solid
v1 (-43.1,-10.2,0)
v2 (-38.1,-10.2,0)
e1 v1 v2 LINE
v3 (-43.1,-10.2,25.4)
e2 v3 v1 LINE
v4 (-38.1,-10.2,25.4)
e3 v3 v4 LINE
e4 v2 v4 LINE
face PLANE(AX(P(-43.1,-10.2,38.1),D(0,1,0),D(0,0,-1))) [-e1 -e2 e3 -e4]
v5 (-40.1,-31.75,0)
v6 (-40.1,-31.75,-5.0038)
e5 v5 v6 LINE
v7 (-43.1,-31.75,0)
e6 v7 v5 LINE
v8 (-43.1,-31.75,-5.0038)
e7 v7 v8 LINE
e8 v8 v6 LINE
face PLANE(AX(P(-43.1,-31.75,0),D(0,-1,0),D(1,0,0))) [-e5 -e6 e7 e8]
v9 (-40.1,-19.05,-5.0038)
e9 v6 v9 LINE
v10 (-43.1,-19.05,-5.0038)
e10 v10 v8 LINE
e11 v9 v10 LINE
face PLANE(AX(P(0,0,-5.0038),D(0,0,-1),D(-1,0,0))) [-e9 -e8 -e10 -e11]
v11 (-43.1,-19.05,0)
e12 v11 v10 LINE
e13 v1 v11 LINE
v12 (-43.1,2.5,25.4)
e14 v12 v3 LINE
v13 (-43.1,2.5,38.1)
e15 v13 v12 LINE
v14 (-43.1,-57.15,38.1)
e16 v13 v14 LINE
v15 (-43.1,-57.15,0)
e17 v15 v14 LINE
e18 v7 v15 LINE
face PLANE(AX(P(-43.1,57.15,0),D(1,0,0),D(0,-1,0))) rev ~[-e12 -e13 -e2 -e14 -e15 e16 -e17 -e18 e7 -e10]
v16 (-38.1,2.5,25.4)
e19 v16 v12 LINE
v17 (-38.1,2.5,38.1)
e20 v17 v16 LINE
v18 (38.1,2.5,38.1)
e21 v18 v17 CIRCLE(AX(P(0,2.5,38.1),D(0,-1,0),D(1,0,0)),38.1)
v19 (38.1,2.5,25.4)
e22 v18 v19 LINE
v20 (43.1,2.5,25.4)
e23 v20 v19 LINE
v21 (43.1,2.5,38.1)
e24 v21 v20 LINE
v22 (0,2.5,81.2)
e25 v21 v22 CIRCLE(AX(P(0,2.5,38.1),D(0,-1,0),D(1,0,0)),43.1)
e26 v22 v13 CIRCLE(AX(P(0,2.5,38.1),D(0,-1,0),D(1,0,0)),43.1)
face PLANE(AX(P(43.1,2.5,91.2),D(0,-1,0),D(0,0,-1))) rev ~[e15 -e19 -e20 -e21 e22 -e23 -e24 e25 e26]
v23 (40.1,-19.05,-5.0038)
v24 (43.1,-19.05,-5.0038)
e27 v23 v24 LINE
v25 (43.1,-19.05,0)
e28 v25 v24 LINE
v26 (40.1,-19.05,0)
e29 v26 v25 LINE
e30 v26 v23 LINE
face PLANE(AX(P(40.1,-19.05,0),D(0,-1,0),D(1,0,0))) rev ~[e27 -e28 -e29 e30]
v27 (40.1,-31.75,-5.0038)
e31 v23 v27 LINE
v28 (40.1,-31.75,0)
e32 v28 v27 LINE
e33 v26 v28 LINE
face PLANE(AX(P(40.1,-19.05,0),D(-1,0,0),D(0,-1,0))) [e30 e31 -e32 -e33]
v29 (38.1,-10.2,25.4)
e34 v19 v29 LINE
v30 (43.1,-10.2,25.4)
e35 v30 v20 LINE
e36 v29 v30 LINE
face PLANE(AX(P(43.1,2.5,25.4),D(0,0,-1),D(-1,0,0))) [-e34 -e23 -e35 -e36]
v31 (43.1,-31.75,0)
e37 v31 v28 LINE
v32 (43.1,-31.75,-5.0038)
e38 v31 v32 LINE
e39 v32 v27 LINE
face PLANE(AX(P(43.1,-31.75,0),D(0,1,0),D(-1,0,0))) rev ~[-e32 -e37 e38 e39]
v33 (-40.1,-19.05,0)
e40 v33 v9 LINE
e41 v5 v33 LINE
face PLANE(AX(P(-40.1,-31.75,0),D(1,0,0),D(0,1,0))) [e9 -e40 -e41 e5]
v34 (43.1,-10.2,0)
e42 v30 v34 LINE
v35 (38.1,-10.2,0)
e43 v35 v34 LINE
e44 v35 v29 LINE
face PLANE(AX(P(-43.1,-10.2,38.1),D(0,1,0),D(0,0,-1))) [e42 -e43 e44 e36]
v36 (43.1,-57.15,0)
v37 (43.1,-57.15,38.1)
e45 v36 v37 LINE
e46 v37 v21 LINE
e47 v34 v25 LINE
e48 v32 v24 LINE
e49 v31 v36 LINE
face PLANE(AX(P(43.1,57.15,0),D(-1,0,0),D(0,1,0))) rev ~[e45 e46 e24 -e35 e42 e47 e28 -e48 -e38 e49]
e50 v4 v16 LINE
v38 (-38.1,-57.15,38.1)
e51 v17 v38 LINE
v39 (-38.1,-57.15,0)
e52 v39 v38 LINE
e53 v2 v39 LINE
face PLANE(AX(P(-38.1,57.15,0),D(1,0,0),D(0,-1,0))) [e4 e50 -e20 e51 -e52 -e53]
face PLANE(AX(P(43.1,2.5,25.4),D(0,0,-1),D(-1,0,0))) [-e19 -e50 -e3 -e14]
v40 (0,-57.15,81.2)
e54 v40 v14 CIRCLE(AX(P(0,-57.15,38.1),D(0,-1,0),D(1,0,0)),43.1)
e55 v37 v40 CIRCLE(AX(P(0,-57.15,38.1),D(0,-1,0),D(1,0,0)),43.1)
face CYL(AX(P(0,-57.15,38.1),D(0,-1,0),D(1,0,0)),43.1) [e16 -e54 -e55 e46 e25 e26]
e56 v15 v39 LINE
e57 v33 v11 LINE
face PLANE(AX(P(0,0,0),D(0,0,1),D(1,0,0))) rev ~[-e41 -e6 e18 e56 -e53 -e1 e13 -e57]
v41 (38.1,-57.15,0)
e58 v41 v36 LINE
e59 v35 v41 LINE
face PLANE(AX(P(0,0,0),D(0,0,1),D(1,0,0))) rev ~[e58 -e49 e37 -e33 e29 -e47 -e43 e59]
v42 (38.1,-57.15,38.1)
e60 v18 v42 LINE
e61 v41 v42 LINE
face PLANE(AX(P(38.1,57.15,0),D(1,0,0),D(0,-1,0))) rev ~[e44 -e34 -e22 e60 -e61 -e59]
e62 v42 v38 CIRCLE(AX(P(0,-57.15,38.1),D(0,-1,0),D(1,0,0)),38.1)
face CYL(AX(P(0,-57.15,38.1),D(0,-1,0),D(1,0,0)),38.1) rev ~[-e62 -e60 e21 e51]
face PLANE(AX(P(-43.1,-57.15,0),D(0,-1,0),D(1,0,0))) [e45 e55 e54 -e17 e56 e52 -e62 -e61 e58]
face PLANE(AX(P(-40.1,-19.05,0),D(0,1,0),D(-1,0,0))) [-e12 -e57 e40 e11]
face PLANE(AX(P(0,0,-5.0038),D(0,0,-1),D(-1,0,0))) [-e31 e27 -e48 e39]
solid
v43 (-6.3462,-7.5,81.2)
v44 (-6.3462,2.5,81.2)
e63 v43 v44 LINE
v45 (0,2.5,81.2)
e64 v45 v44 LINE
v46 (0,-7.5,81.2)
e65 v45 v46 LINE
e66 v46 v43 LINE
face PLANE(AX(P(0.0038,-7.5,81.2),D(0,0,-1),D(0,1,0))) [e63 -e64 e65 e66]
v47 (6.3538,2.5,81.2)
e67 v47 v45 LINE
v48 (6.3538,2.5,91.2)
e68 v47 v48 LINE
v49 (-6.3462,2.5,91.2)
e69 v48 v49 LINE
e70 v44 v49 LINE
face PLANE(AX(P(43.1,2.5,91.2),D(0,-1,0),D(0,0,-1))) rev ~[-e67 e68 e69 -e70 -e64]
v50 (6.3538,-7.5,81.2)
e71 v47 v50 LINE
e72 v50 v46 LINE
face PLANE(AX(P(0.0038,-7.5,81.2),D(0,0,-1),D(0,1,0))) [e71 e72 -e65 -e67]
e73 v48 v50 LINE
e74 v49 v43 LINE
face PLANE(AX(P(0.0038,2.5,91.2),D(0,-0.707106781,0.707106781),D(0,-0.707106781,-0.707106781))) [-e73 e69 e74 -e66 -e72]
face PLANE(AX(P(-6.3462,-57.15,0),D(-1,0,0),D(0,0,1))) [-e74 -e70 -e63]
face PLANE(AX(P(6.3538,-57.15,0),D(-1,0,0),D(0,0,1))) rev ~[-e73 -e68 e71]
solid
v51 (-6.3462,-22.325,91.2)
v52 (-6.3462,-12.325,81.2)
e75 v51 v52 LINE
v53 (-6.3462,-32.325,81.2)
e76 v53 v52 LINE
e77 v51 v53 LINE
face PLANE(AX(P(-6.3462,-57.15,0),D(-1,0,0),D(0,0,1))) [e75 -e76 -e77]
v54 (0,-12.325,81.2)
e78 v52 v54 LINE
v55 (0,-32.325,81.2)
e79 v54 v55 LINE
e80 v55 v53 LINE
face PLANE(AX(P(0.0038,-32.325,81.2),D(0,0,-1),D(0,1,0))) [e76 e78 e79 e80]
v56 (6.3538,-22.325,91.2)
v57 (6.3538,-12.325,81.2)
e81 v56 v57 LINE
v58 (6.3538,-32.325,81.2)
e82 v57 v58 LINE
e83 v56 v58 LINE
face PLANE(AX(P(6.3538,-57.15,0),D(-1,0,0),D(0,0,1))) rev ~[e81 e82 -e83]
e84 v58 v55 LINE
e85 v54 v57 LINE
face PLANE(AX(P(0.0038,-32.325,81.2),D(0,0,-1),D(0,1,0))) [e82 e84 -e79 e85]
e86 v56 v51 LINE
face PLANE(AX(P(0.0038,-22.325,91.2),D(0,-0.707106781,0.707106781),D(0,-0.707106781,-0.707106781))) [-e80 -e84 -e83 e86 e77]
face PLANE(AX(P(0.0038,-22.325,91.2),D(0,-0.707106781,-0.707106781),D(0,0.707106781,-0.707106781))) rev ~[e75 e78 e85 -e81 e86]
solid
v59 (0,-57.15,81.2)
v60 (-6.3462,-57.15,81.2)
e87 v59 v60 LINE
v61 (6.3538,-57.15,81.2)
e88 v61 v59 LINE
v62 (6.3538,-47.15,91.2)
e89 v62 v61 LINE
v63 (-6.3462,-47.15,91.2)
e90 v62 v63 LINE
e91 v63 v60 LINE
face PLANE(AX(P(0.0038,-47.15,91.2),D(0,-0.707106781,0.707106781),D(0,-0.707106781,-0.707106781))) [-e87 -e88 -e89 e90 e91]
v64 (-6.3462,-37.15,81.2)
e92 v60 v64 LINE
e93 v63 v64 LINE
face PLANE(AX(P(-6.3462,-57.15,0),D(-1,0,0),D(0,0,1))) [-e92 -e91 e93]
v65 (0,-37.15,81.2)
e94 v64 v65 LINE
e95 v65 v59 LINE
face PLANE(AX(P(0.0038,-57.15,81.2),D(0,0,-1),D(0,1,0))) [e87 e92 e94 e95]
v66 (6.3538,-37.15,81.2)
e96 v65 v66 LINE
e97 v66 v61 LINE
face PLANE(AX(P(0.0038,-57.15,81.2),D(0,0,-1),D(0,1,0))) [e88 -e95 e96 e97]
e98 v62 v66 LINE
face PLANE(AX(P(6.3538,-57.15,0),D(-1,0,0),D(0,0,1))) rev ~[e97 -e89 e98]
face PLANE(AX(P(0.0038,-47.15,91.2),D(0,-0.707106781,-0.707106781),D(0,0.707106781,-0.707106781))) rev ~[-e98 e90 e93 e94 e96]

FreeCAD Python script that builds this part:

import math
import FreeCAD as App
import Part
import Sketcher

V = App.Vector
Q = App.Units.Quantity

doc = App.newDocument("Part")
body = doc.addObject("PartDesign::Body", "Body")
body.AllowCompound = True

sketch1 = body.newObject("Sketcher::SketchObject", "Sketch")
sketch1.AttachmentSupport = (doc.getObject("XY_Plane"), [""])
sketch1.MapMode = "FlatFace"
sketch1.addGeometry([
    Part.LineSegment(V(-43, -57, 0), V(-38, -57, 0)),
    Part.LineSegment(V(-38, -57, 0), V(-38, 57, 0)),
    Part.LineSegment(V(-38, 57, 0), V(38, 57, 0)),
    Part.LineSegment(V(38, 57, 0), V(38, -57, 0)),
    Part.LineSegment(V(38, -57, 0), V(43, -57, 0)),
    Part.LineSegment(V(43, -57, 0), V(43, 62, 0)),
    Part.LineSegment(V(43, 62, 0), V(-43, 62, 0)),
    Part.LineSegment(V(-43, 62, 0), V(-43, -57, 0)),
], False)
sketch1.addConstraint([
    Sketcher.Constraint("Coincident", 0, 2, 1, 1),
    Sketcher.Constraint("Coincident", 1, 2, 2, 1),
    Sketcher.Constraint("Coincident", 2, 2, 3, 1),
    Sketcher.Constraint("Coincident", 3, 2, 4, 1),
    Sketcher.Constraint("Coincident", 4, 2, 5, 1),
    Sketcher.Constraint("Coincident", 5, 2, 6, 1),
    Sketcher.Constraint("Coincident", 6, 2, 7, 1),
    Sketcher.Constraint("Coincident", 7, 2, 0, 1),
    Sketcher.Constraint("Horizontal", 0),
    Sketcher.Constraint("Vertical", 1),
    Sketcher.Constraint("Horizontal", 2),
    Sketcher.Constraint("Vertical", 3),
    Sketcher.Constraint("Horizontal", 4),
    Sketcher.Constraint("Vertical", 5),
    Sketcher.Constraint("Horizontal", 6),
    Sketcher.Constraint("Vertical", 7),
    Sketcher.Constraint("Symmetric", 0, 2, 2, 2, -1, 1),
    Sketcher.Constraint("Symmetric", 4, 2, 7, 2, -2),
    Sketcher.Constraint("DistanceX", 2, 1, 2, 2, Q("3 in")),
    Sketcher.Constraint("DistanceY", 1, 1, 1, 2, Q("4.5 in")),
    Sketcher.Constraint("DistanceX", 0, 1, 0, 2, Q("5 mm")),
    Sketcher.Constraint("DistanceY", 2, 2, 5, 2, Q("5 mm")),
])
pad1 = body.newObject("PartDesign::Pad", "Pad")
pad1.Profile = sketch1
pad1.Length = Q("1.5 in")

sketch2 = body.newObject("Sketcher::SketchObject", "Sketch001")
sketch2.AttachmentSupport = (doc.getObject("XZ_Plane"), [""])
sketch2.MapMode = "FlatFace"
sketch2.AttachmentOffset = App.Placement(V(0, 0, 2.25 * 25.4), App.Rotation())
sketch2.addGeometry([
    Part.LineSegment(V(-43, 38, 0), V(-38, 38, 0)),
    Part.ArcOfCircle(Part.Circle(V(0, 38, 0), V(0, 0, 1), 38), math.radians(0), math.radians(180)),
    Part.LineSegment(V(38, 38, 0), V(43, 38, 0)),
    Part.ArcOfCircle(Part.Circle(V(0, 38, 0), V(0, 0, 1), 43), math.radians(0), math.radians(180)),
], False)
sketch2.addConstraint([
    Sketcher.Constraint("Coincident", 0, 2, 1, 2),
    Sketcher.Constraint("Coincident", 1, 1, 2, 1),
    Sketcher.Constraint("Coincident", 2, 2, 3, 1),
    Sketcher.Constraint("Coincident", 3, 2, 0, 1),
    Sketcher.Constraint("Horizontal", 0),
    Sketcher.Constraint("Horizontal", 2),
    Sketcher.Constraint("Coincident", 3, 3, 1, 3),
    Sketcher.Constraint("Symmetric", 0, 2, 1, 1, -2),
    Sketcher.Constraint("Horizontal", 3, 3, 0, 2),
    Sketcher.Constraint("Radius", 1, Q("1.5 in")),
    Sketcher.Constraint("DistanceY", -1, 1, 1, 3, Q("1.5 in")),
    Sketcher.Constraint("Radius", 3, Q("43.1 mm")),
])
pad2 = body.newObject("PartDesign::Pad", "Pad001")
pad2.Profile = sketch2
pad2.Length = 119.3
pad2.Reversed = True

sketch3 = body.newObject("Sketcher::SketchObject", "Sketch002")
sketch3.AttachmentSupport = (doc.getObject("XZ_Plane"), [""])
sketch3.MapMode = "FlatFace"
sketch3.AttachmentOffset = App.Placement(V(0, 0, -62.15), App.Rotation())
sketch3.addGeometry([
    Part.LineSegment(V(38, 38, 0), V(-38, 38, 0)),
    Part.ArcOfCircle(Part.Circle(V(0, 38, 0), V(0, 0, 1), 38), math.radians(0), math.radians(180)),
], False)
sketch3.addConstraint([
    Sketcher.Constraint("Coincident", 0, 1, 1, 1),
    Sketcher.Constraint("Coincident", 1, 2, 0, 2),
    Sketcher.Constraint("Horizontal", 0),
    Sketcher.Constraint("PointOnObject", 1, 3, -2),
    Sketcher.Constraint("Horizontal", 1, 3, 0, 1),
    Sketcher.Constraint("Radius", 1, Q("1.5 in")),
    Sketcher.Constraint("DistanceY", -1, 1, 1, 3, Q("1.5 in")),
])
pad3 = body.newObject("PartDesign::Pad", "Pad002")
pad3.Profile = sketch3
pad3.Length = 5

sketch4 = body.newObject("Sketcher::SketchObject", "Sketch003")
sketch4.AttachmentSupport = (doc.getObject("XZ_Plane"), [""])
sketch4.MapMode = "FlatFace"
sketch4.AttachmentOffset = App.Placement(V(0, 0, -62.15), App.Rotation())
sketch4.addGeometry(Part.Circle(V(0, 23.4, 0), V(0, 0, 1), 3.3), False)
sketch4.addConstraint([
    Sketcher.Constraint("PointOnObject", 0, 3, -2),
    Sketcher.Constraint("Diameter", 0, Q("6.55 mm")),
    Sketcher.Constraint("DistanceY", -1, 1, 0, 3, Q("23.375 mm")),
])
pocket1 = body.newObject("PartDesign::Pocket", "Pocket")
pocket1.Profile = sketch4
pocket1.Length = 5
pocket1.Reversed = True

sketch5 = body.newObject("Sketcher::SketchObject", "Sketch004")
sketch5.AttachmentSupport = (doc.getObject("YZ_Plane"), [""])
sketch5.MapMode = "FlatFace"
sketch5.AttachmentOffset = App.Placement(V(0, 0, 0.0038), App.Rotation())
sketch5.addGeometry([
    Part.LineSegment(V(42, 81, 0), V(52, 91, 0)),
    Part.LineSegment(V(52, 91, 0), V(62, 81, 0)),
    Part.LineSegment(V(62, 81, 0), V(42, 81, 0)),
    Part.LineSegment(V(17, 81, 0), V(27, 91, 0)),
    Part.LineSegment(V(27, 91, 0), V(37, 81, 0)),
    Part.LineSegment(V(37, 81, 0), V(17, 81, 0)),
    Part.LineSegment(V(-8, 81, 0), V(2, 91, 0)),
    Part.LineSegment(V(2, 91, 0), V(12, 81, 0)),
    Part.LineSegment(V(12, 81, 0), V(-8, 81, 0)),
    Part.LineSegment(V(-32, 81, 0), V(-22, 91, 0)),
    Part.LineSegment(V(-22, 91, 0), V(-12, 81, 0)),
    Part.LineSegment(V(-12, 81, 0), V(-32, 81, 0)),
    Part.LineSegment(V(-57, 81, 0), V(-47, 91, 0)),
    Part.LineSegment(V(-47, 91, 0), V(-37, 81, 0)),
    Part.LineSegment(V(-37, 81, 0), V(-57, 81, 0)),
], False)
sketch5.addConstraint([
    Sketcher.Constraint("Coincident", 0, 2, 1, 1),
    Sketcher.Constraint("Coincident", 1, 2, 2, 1),
    Sketcher.Constraint("Coincident", 2, 2, 0, 1),
    Sketcher.Constraint("Coincident", 3, 2, 4, 1),
    Sketcher.Constraint("Coincident", 4, 2, 5, 1),
    Sketcher.Constraint("Coincident", 5, 2, 3, 1),
    Sketcher.Constraint("Coincident", 6, 2, 7, 1),
    Sketcher.Constraint("Coincident", 7, 2, 8, 1),
    Sketcher.Constraint("Coincident", 8, 2, 6, 1),
    Sketcher.Constraint("Coincident", 9, 2, 10, 1),
    Sketcher.Constraint("Coincident", 10, 2, 11, 1),
    Sketcher.Constraint("Coincident", 11, 2, 9, 1),
    Sketcher.Constraint("Coincident", 12, 2, 13, 1),
    Sketcher.Constraint("Coincident", 13, 2, 14, 1),
    Sketcher.Constraint("Coincident", 14, 2, 12, 1),
    Sketcher.Constraint("Horizontal", 2),
    Sketcher.Constraint("Horizontal", 5),
    Sketcher.Constraint("Horizontal", 8),
    Sketcher.Constraint("Horizontal", 11),
    Sketcher.Constraint("Horizontal", 14),
    Sketcher.Constraint("Perpendicular", 0, 1),
    Sketcher.Constraint("Perpendicular", 1, 3),
    Sketcher.Constraint("Perpendicular", 3, 4),
    Sketcher.Constraint("Perpendicular", 4, 6),
    Sketcher.Constraint("Perpendicular", 6, 7),
    Sketcher.Constraint("Perpendicular", 7, 9),
    Sketcher.Constraint("Perpendicular", 9, 10),
    Sketcher.Constraint("Perpendicular", 10, 12),
    Sketcher.Constraint("Perpendicular", 12, 13),
    Sketcher.Constraint("Horizontal", 0, 2, 3, 2),
    Sketcher.Constraint("Horizontal", 2, 2, 4, 2),
    Sketcher.Constraint("Horizontal", 3, 2, 6, 2),
    Sketcher.Constraint("Horizontal", 5, 2, 7, 2),
    Sketcher.Constraint("Horizontal", 6, 2, 9, 2),
    Sketcher.Constraint("Horizontal", 8, 2, 10, 2),
    Sketcher.Constraint("Horizontal", 9, 2, 12, 2),
    Sketcher.Constraint("Horizontal", 11, 2, 13, 2),
    Sketcher.Constraint("Equal", 0, 1),
    Sketcher.Constraint("DistanceX", 2, 2, 2, 1, Q("0.7874 in")),
    Sketcher.Constraint("DistanceX", 14, 2, -1, 1, Q("2.25 in")),
    Sketcher.Constraint("DistanceX", 3, 2, 0, 2, Q("24.825 mm")),
    Sketcher.Constraint("DistanceX", 6, 2, 3, 2, Q("24.825 mm")),
    Sketcher.Constraint("DistanceX", 9, 2, 6, 2, Q("24.825 mm")),
    Sketcher.Constraint("DistanceX", 12, 2, 9, 2, Q("24.825 mm")),
    Sketcher.Constraint("DistanceY", -1, 1, 0, 2, Q("91.2 mm")),
])
pad4 = body.newObject("PartDesign::Pad", "Pad003")
pad4.Profile = sketch5
pad4.Length = Q("0.5 in")
pad4.Midplane = True

sketch6 = body.newObject("Sketcher::SketchObject", "Sketch005")
sketch6.AttachmentSupport = (doc.getObject("XY_Plane"), [""])
sketch6.MapMode = "FlatFace"
sketch6.addGeometry([
    Part.LineSegment(V(-43.1, -31.8, 0), V(-43.1, -19.1, 0)),
    Part.LineSegment(V(-43.1, -19.1, 0), V(-40.1, -19.1, 0)),
    Part.LineSegment(V(-40.1, -19.1, 0), V(-40.1, -31.8, 0)),
    Part.LineSegment(V(-40.1, -31.8, 0), V(-43.1, -31.8, 0)),
    Part.LineSegment(V(-40.1, 36.8, 0), V(-40.1, 24.1, 0)),
    Part.LineSegment(V(-40.1, 24.1, 0), V(-43.1, 24.1, 0)),
    Part.LineSegment(V(-43.1, 24.1, 0), V(-43.1, 36.8, 0)),
    Part.LineSegment(V(-43.1, 36.8, 0), V(-40.1, 36.8, 0)),
    Part.LineSegment(V(40.1, -19.1, 0), V(43.1, -19.1, 0)),
    Part.LineSegment(V(43.1, -19.1, 0), V(43.1, -31.8, 0)),
    Part.LineSegment(V(43.1, -31.8, 0), V(40.1, -31.8, 0)),
    Part.LineSegment(V(40.1, -31.8, 0), V(40.1, -19.1, 0)),
    Part.LineSegment(V(40.1, 24.1, 0), V(40.1, 36.8, 0)),
    Part.LineSegment(V(40.1, 36.8, 0), V(43.1, 36.8, 0)),
    Part.LineSegment(V(43.1, 36.8, 0), V(43.1, 24.1, 0)),
    Part.LineSegment(V(43.1, 24.1, 0), V(40.1, 24.1, 0)),
], False)
sketch6.addConstraint([
    Sketcher.Constraint("Coincident", 0, 2, 1, 1),
    Sketcher.Constraint("Coincident", 1, 2, 2, 1),
    Sketcher.Constraint("Coincident", 2, 2, 3, 1),
    Sketcher.Constraint("Coincident", 3, 2, 0, 1),
    Sketcher.Constraint("Coincident", 4, 2, 5, 1),
    Sketcher.Constraint("Coincident", 5, 2, 6, 1),
    Sketcher.Constraint("Coincident", 6, 2, 7, 1),
    Sketcher.Constraint("Coincident", 7, 2, 4, 1),
    Sketcher.Constraint("Coincident", 8, 2, 9, 1),
    Sketcher.Constraint("Coincident", 9, 2, 10, 1),
    Sketcher.Constraint("Coincident", 10, 2, 11, 1),
    Sketcher.Constraint("Coincident", 11, 2, 8, 1),
    Sketcher.Constraint("Coincident", 12, 2, 13, 1),
    Sketcher.Constraint("Coincident", 13, 2, 14, 1),
    Sketcher.Constraint("Coincident", 14, 2, 15, 1),
    Sketcher.Constraint("Coincident", 15, 2, 12, 1),
    Sketcher.Constraint("Vertical", 0),
    Sketcher.Constraint("Horizontal", 1),
    Sketcher.Constraint("Vertical", 2),
    Sketcher.Constraint("Horizontal", 3),
    Sketcher.Constraint("Vertical", 4),
    Sketcher.Constraint("Horizontal", 5),
    Sketcher.Constraint("Vertical", 6),
    Sketcher.Constraint("Horizontal", 7),
    Sketcher.Constraint("Horizontal", 8),
    Sketcher.Constraint("Vertical", 9),
    Sketcher.Constraint("Horizontal", 10),
    Sketcher.Constraint("Vertical", 11),
    Sketcher.Constraint("Vertical", 12),
    Sketcher.Constraint("Horizontal", 13),
    Sketcher.Constraint("Vertical", 14),
    Sketcher.Constraint("Horizontal", 15),
    Sketcher.Constraint("Symmetric", 0, 2, 8, 2, -2),
    Sketcher.Constraint("Symmetric", 2, 2, 10, 2, -2),
    Sketcher.Constraint("Symmetric", 7, 2, 12, 2, -2),
    Sketcher.Constraint("Symmetric", 5, 2, 14, 2, -2),
    Sketcher.Constraint("Vertical", 2, 2, 4, 2),
    Sketcher.Constraint("Vertical", 3, 2, 5, 2),
    Sketcher.Constraint("Equal", 2, 4),
    Sketcher.Constraint("DistanceY", 0, 1, 0, 2, Q("0.5 in")),
    Sketcher.Constraint("DistanceY", 0, 2, -1, 1, Q("0.75 in")),
    Sketcher.Constraint("DistanceX", 1, 1, 1, 2, Q("0.1181 in")),
    Sketcher.Constraint("DistanceX", 1, 2, 8, 2, Q("3.2756 in")),
    Sketcher.Constraint("DistanceY", -1, 1, 4, 2, Q("24.05 mm")),
])
pad5 = body.newObject("PartDesign::Pad", "Pad004")
pad5.Profile = sketch6
pad5.Length = Q("0.197 in")
pad5.Reversed = True

sketch7 = body.newObject("Sketcher::SketchObject", "Sketch006")
sketch7.AttachmentSupport = (doc.getObject("YZ_Plane"), [""])
sketch7.MapMode = "FlatFace"
sketch7.AttachmentOffset = App.Placement(V(0, 0, 43.1), App.Rotation())
sketch7.addGeometry([
    Part.LineSegment(V(70, 149, 0), V(2, 91, 0)),
    Part.LineSegment(V(2, 91, 0), V(2, -41, 0)),
    Part.LineSegment(V(2, -41, 0), V(166, 0, 0)),
    Part.LineSegment(V(166, 0, 0), V(70, 149, 0)),
], False)
sketch7.addConstraint([
    Sketcher.Constraint("Coincident", 0, 2, 1, 1),
    Sketcher.Constraint("Coincident", 1, 2, 2, 1),
    Sketcher.Constraint("Coincident", 2, 2, 3, 1),
    Sketcher.Constraint("Coincident", 3, 2, 0, 1),
    Sketcher.Constraint("Vertical", 1),
    Sketcher.Constraint("PointOnObject", 2, 2, -1),
    Sketcher.Constraint("Angle", 2, Q("14.0096 deg")),
    Sketcher.Constraint("Angle", 3, Q("122.789 deg")),
    Sketcher.Constraint("DistanceY", -1, 1, 3, 2, Q("5.855 in")),
    Sketcher.Constraint("DistanceY", 1, 2, 1, 1, Q("131.949 mm")),
    Sketcher.Constraint("DistanceY", 1, 2, -1, 1, Q("1.6043 in")),
    Sketcher.Constraint("DistanceX", -1, 1, 0, 2, Q("2.5 mm")),
])
pocket2 = body.newObject("PartDesign::Pocket", "Pocket001")
pocket2.Profile = sketch7
pocket2.Length = Q("100 in")

sketch8 = body.newObject("Sketcher::SketchObject", "Sketch007")
sketch8.AttachmentSupport = (doc.getObject("YZ_Plane"), [""])
sketch8.MapMode = "FlatFace"
sketch8.AttachmentOffset = App.Placement(V(0, 0, -43.1), App.Rotation())
sketch8.addGeometry([
    Part.LineSegment(V(-10, 38, 0), V(2, 38, 0)),
    Part.LineSegment(V(2, 38, 0), V(2, 0, 0)),
    Part.LineSegment(V(2, 0, 0), V(-10, 0, 0)),
    Part.LineSegment(V(-10, 0, 0), V(-10, 38, 0)),
], False)
sketch8.addConstraint([
    Sketcher.Constraint("Coincident", 0, 2, 1, 1),
    Sketcher.Constraint("Coincident", 1, 2, 2, 1),
    Sketcher.Constraint("Coincident", 2, 2, 3, 1),
    Sketcher.Constraint("Coincident", 3, 2, 0, 1),
    Sketcher.Constraint("Horizontal", 0),
    Sketcher.Constraint("Vertical", 1),
    Sketcher.Constraint("Horizontal", 2),
    Sketcher.Constraint("Vertical", 3),
    Sketcher.Constraint("PointOnObject", 1, 2, -1),
    Sketcher.Constraint("DistanceX", 0, 1, 0, 2, Q("0.5 in")),
    Sketcher.Constraint("DistanceY", 1, 2, 1, 1, Q("1.5 in")),
    Sketcher.Constraint("DistanceX", -1, 1, 0, 2, Q("2.5 mm")),
])
pocket3 = body.newObject("PartDesign::Pocket", "Pocket002")
pocket3.Profile = sketch8
pocket3.Length = Q("77 in")
pocket3.Reversed = True

sketch9 = body.newObject("Sketcher::SketchObject", "Sketch008")
sketch9.AttachmentSupport = (doc.getObject("XY_Plane"), [""])
sketch9.MapMode = "FlatFace"
sketch9.AttachmentOffset = App.Placement(V(0, 0, 1.5 * 25.4), App.Rotation())
sketch9.addGeometry([
    Part.LineSegment(V(-38, 2, 0), V(-38, -10, 0)),
    Part.LineSegment(V(-38, -10, 0), V(-43, -10, 0)),
    Part.LineSegment(V(-43, -10, 0), V(-43, 2, 0)),
    Part.LineSegment(V(-43, 2, 0), V(-38, 2, 0)),
    Part.LineSegment(V(38, -10, 0), V(38, 2, 0)),
    Part.LineSegment(V(38, 2, 0), V(43, 2, 0)),
    Part.LineSegment(V(43, 2, 0), V(43, -10, 0)),
    Part.LineSegment(V(43, -10, 0), V(38, -10, 0)),
], False)
sketch9.addConstraint([
    Sketcher.Constraint("Coincident", 0, 2, 1, 1),
    Sketcher.Constraint("Coincident", 1, 2, 2, 1),
    Sketcher.Constraint("Coincident", 2, 2, 3, 1),
    Sketcher.Constraint("Coincident", 3, 2, 0, 1),
    Sketcher.Constraint("Coincident", 4, 2, 5, 1),
    Sketcher.Constraint("Coincident", 5, 2, 6, 1),
    Sketcher.Constraint("Coincident", 6, 2, 7, 1),
    Sketcher.Constraint("Coincident", 7, 2, 4, 1),
    Sketcher.Constraint("Vertical", 0),
    Sketcher.Constraint("Horizontal", 1),
    Sketcher.Constraint("Vertical", 2),
    Sketcher.Constraint("Horizontal", 3),
    Sketcher.Constraint("Vertical", 4),
    Sketcher.Constraint("Horizontal", 5),
    Sketcher.Constraint("Vertical", 6),
    Sketcher.Constraint("Horizontal", 7),
    Sketcher.Constraint("Symmetric", 3, 2, 4, 2, -2),
    Sketcher.Constraint("Symmetric", 1, 2, 6, 2, -2),
    Sketcher.Constraint("DistanceY", 0, 2, 0, 1, Q("0.5 in")),
    Sketcher.Constraint("DistanceX", 3, 2, 4, 2, Q("3 in")),
    Sketcher.Constraint("DistanceX", 1, 2, 1, 1, Q("5 mm")),
    Sketcher.Constraint("DistanceY", 0, 2, -1, 1, Q("10.2 mm")),
])
pad6 = body.newObject("PartDesign::Pad", "Pad005")
pad6.Profile = sketch9
pad6.Length = Q("0.5 in")
pad6.Reversed = True

doc.recompute()
